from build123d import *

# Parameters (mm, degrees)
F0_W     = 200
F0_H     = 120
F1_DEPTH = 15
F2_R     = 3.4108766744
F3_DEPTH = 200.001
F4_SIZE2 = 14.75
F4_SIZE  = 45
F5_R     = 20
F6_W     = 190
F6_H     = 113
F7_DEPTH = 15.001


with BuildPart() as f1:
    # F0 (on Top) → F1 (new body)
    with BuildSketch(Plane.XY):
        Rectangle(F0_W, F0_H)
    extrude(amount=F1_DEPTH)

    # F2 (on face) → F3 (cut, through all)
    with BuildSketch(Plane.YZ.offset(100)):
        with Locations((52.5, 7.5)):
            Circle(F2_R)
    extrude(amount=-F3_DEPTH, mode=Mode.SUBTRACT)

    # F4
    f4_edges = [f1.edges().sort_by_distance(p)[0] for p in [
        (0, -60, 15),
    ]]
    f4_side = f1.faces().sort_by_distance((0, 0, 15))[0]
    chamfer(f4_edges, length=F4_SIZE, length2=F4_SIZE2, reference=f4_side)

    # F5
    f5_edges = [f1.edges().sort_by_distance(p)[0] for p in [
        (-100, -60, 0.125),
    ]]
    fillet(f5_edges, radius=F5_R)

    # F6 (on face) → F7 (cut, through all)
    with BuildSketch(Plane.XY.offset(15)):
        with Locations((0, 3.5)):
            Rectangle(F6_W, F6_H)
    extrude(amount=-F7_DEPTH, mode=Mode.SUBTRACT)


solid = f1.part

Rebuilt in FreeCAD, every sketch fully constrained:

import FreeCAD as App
import Part
import Sketcher

V = App.Vector
Q = App.Units.Quantity


def edges_at(feature, points):
    """Names of the edges that pass closest to the given points."""
    edges = feature.Shape.Edges
    near = lambda p: min(range(len(edges)), key=lambda i: edges[i].distToShape(Part.Vertex(*p))[0])
    return sorted({f"Edge{near(p) + 1}" for p in points})

doc = App.newDocument("Part")
body = doc.addObject("PartDesign::Body", "Body")

# Sketch on XY plane
sketch1 = body.newObject("Sketcher::SketchObject", "Sketch")
sketch1.AttachmentSupport = (doc.getObject("XY_Plane"), [""])
sketch1.MapMode = "FlatFace"
sketch1.addGeometry(Part.LineSegment(V(-100, 60, 0), V(-100, -60, 0)), False)
sketch1.addGeometry(Part.LineSegment(V(-100, -60, 0), V(100, -60, 0)), False)
sketch1.addGeometry(Part.LineSegment(V(100, -60, 0), V(100, 60, 0)), False)
sketch1.addGeometry(Part.LineSegment(V(100, 60, 0), V(-100, 60, 0)), False)
sketch1.addConstraint(Sketcher.Constraint("Coincident", 0, 2, 1, 1))
sketch1.addConstraint(Sketcher.Constraint("Coincident", 1, 2, 2, 1))
sketch1.addConstraint(Sketcher.Constraint("Coincident", 2, 2, 3, 1))
sketch1.addConstraint(Sketcher.Constraint("Coincident", 3, 2, 0, 1))
sketch1.addConstraint(Sketcher.Constraint("Vertical", 0))
sketch1.addConstraint(Sketcher.Constraint("Horizontal", 1))
sketch1.addConstraint(Sketcher.Constraint("Vertical", 2))
sketch1.addConstraint(Sketcher.Constraint("Horizontal", 3))
sketch1.addConstraint(Sketcher.Constraint("Symmetric", 0, 2, 2, 2, -1, 1))
sketch1.addConstraint(Sketcher.Constraint("DistanceX", 1, 1, 1, 2, Q("200 mm")))
sketch1.addConstraint(Sketcher.Constraint("DistanceY", 0, 2, 0, 1, Q("120 mm")))
pad1 = body.newObject("PartDesign::Pad", "Pad")
pad1.Profile = sketch1
pad1.Length = 15

# Sketch on YZ plane
sketch2 = body.newObject("Sketcher::SketchObject", "Sketch001")
sketch2.AttachmentSupport = (doc.getObject("YZ_Plane"), [""])
sketch2.MapMode = "FlatFace"
sketch2.AttachmentOffset = App.Placement(V(0, 0, 100), App.Rotation())
sketch2.addGeometry(Part.Circle(V(52.5, 7.5, 0), V(0, 0, 1), 3.4), False)
sketch2.addConstraint(Sketcher.Constraint("DistanceX", -1, 1, 0, 3, Q("52.5 mm")))
sketch2.addConstraint(Sketcher.Constraint("DistanceY", -1, 1, 0, 3, Q("7.5 mm")))
sketch2.addConstraint(Sketcher.Constraint("Diameter", 0, Q("6.821753 mm")))
pocket1 = body.newObject("PartDesign::Pocket", "Pocket")
pocket1.Profile = sketch2
pocket1.Type = "ThroughAll"
doc.recompute()

chamfer = body.newObject("PartDesign::Chamfer", "Chamfer")
chamfer.Base = (pocket1, edges_at(pocket1, [(0, -60, 15)]))
chamfer.ChamferType = "Two distances"
chamfer.Size = 45
chamfer.Size2 = 14.75
doc.recompute()

fillet = body.newObject("PartDesign::Fillet", "Fillet")
fillet.Base = (chamfer, edges_at(chamfer, [(-100, -60, 0.125)]))
fillet.Radius = 20

# Sketch on XY plane
sketch3 = body.newObject("Sketcher::SketchObject", "Sketch002")
sketch3.AttachmentSupport = (doc.getObject("XY_Plane"), [""])
sketch3.MapMode = "FlatFace"
sketch3.AttachmentOffset = App.Placement(V(0, 0, 15), App.Rotation())
sketch3.addGeometry(Part.LineSegment(V(-95, 60, 0), V(-95, -53, 0)), False)
sketch3.addGeometry(Part.LineSegment(V(-95, -53, 0), V(95, -53, 0)), False)
sketch3.addGeometry(Part.LineSegment(V(95, -53, 0), V(95, 60, 0)), False)
sketch3.addGeometry(Part.LineSegment(V(95, 60, 0), V(-95, 60, 0)), False)
sketch3.addConstraint(Sketcher.Constraint("Coincident", 0, 2, 1, 1))
sketch3.addConstraint(Sketcher.Constraint("Coincident", 1, 2, 2, 1))
sketch3.addConstraint(Sketcher.Constraint("Coincident", 2, 2, 3, 1))
sketch3.addConstraint(Sketcher.Constraint("Coincident", 3, 2, 0, 1))
sketch3.addConstraint(Sketcher.Constraint("Vertical", 0))
sketch3.addConstraint(Sketcher.Constraint("Horizontal", 1))
sketch3.addConstraint(Sketcher.Constraint("Vertical", 2))
sketch3.addConstraint(Sketcher.Constraint("Horizontal", 3))
sketch3.addConstraint(Sketcher.Constraint("DistanceX", 1, 1, 1, 2, Q("190 mm")))
sketch3.addConstraint(Sketcher.Constraint("DistanceY", 0, 2, 0, 1, Q("113 mm")))
sketch3.addConstraint(Sketcher.Constraint("DistanceX", 0, 2, -1, 1, Q("95 mm")))
sketch3.addConstraint(Sketcher.Constraint("DistanceY", 0, 2, -1, 1, Q("53 mm")))
pocket2 = body.newObject("PartDesign::Pocket", "Pocket001")
pocket2.Profile = sketch3
pocket2.Type = "ThroughAll"

doc.recompute()
